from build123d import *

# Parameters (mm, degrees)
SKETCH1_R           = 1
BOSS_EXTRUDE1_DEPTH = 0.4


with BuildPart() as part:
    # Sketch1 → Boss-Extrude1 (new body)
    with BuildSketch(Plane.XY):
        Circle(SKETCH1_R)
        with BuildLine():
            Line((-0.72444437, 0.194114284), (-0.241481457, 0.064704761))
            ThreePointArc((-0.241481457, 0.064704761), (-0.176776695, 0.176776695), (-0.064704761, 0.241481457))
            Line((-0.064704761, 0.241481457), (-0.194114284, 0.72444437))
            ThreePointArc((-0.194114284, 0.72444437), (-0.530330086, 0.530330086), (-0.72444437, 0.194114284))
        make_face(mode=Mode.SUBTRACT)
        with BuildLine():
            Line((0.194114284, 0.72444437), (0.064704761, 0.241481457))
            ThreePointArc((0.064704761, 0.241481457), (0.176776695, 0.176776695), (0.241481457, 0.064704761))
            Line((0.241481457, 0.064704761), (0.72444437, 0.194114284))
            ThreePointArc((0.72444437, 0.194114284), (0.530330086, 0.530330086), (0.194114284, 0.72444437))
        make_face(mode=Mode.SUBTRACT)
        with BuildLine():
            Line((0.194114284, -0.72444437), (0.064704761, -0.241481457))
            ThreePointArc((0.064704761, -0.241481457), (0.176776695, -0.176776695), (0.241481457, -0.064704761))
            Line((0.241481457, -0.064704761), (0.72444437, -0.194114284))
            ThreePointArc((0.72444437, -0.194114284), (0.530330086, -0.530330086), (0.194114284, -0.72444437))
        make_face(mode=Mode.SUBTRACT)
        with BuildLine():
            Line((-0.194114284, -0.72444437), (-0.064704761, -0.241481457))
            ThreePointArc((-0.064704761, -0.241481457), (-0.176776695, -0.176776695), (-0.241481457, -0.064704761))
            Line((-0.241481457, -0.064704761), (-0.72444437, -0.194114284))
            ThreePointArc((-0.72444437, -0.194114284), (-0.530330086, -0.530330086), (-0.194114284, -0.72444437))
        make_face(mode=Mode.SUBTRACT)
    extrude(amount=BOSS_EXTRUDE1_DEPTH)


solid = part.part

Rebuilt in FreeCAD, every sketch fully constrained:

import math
import FreeCAD as App
import Part
import Sketcher

V = App.Vector
Q = App.Units.Quantity

doc = App.newDocument("Part")
body = doc.addObject("PartDesign::Body", "Body")

sketch1 = body.newObject("Sketcher::SketchObject", "Sketch")
sketch1.AttachmentSupport = (doc.getObject("XY_Plane"), [""])
sketch1.MapMode = "FlatFace"
sketch1.addGeometry([
    Part.Circle(V(0, 0, 0), V(0, 0, 1), 1),
    Part.LineSegment(V(-0.06, -0.24, 0), V(-0.19, -0.72, 0)),
    Part.ArcOfCircle(Part.Circle(V(0, 0, 0), V(0, 0, 1), 0.75), math.radians(-165), math.radians(-105)),
    Part.LineSegment(V(-0.72, -0.19, 0), V(-0.24, -0.06, 0)),
    Part.ArcOfCircle(Part.Circle(V(0, 0, 0), V(0, 0, 1), 0.25), math.radians(-165), math.radians(-105)),
    Part.ArcOfCircle(Part.Circle(V(0, 0, 0), V(0, 0, 1), 0.75), math.radians(-75), math.radians(-15)),
    Part.LineSegment(V(0.19, -0.72, 0), V(0.06, -0.24, 0)),
    Part.ArcOfCircle(Part.Circle(V(0, 0, 0), V(0, 0, 1), 0.25), math.radians(-75), math.radians(-15)),
    Part.LineSegment(V(0.24, -0.06, 0), V(0.72, -0.19, 0)),
    Part.LineSegment(V(-0.24, 0.06, 0), V(-0.72, 0.19, 0)),
    Part.ArcOfCircle(Part.Circle(V(0, 0, 0), V(0, 0, 1), 0.75), math.radians(105), math.radians(165)),
    Part.LineSegment(V(-0.19, 0.72, 0), V(-0.06, 0.24, 0)),
    Part.ArcOfCircle(Part.Circle(V(0, 0, 0), V(0, 0, 1), 0.25), math.radians(105), math.radians(165)),
    Part.LineSegment(V(0.06, 0.24, 0), V(0.19, 0.72, 0)),
    Part.ArcOfCircle(Part.Circle(V(0, 0, 0), V(0, 0, 1), 0.75), math.radians(15), math.radians(75)),
    Part.LineSegment(V(0.72, 0.19, 0), V(0.24, 0.06, 0)),
    Part.ArcOfCircle(Part.Circle(V(0, 0, 0), V(0, 0, 1), 0.25), math.radians(15), math.radians(75)),
], False)
sketch1.addConstraint([
    Sketcher.Constraint("Coincident", 1, 2, 2, 2),
    Sketcher.Constraint("Coincident", 2, 1, 3, 1),
    Sketcher.Constraint("Coincident", 3, 2, 4, 1),
    Sketcher.Constraint("Coincident", 4, 2, 1, 1),
    Sketcher.Constraint("Coincident", 5, 1, 6, 1),
    Sketcher.Constraint("Coincident", 6, 2, 7, 1),
    Sketcher.Constraint("Coincident", 7, 2, 8, 1),
    Sketcher.Constraint("Coincident", 8, 2, 5, 2),
    Sketcher.Constraint("Coincident", 9, 2, 10, 2),
    Sketcher.Constraint("Coincident", 10, 1, 11, 1),
    Sketcher.Constraint("Coincident", 11, 2, 12, 1),
    Sketcher.Constraint("Coincident", 12, 2, 9, 1),
    Sketcher.Constraint("Coincident", 13, 2, 14, 2),
    Sketcher.Constraint("Coincident", 14, 1, 15, 1),
    Sketcher.Constraint("Coincident", 15, 2, 16, 1),
    Sketcher.Constraint("Coincident", 16, 2, 13, 1),
    Sketcher.Constraint("Coincident", 0, 3, -1, 1),
    Sketcher.Constraint("Coincident", 2, 3, -1, 1),
    Sketcher.Constraint("Coincident", 4, 3, -1, 1),
    Sketcher.Constraint("Coincident", 5, 3, -1, 1),
    Sketcher.Constraint("Coincident", 7, 3, -1, 1),
    Sketcher.Constraint("Coincident", 10, 3, -1, 1),
    Sketcher.Constraint("Coincident", 12, 3, -1, 1),
    Sketcher.Constraint("Coincident", 14, 3, -1, 1),
    Sketcher.Constraint("Coincident", 16, 3, -1, 1),
    Sketcher.Constraint("Equal", 2, 5),
    Sketcher.Constraint("Equal", 4, 7),
    Sketcher.Constraint("Equal", 5, 10),
    Sketcher.Constraint("Equal", 7, 12),
    Sketcher.Constraint("Equal", 10, 14),
    Sketcher.Constraint("Equal", 12, 16),
    Sketcher.Constraint("Perpendicular", 3, 6),
    Sketcher.Constraint("Perpendicular", 1, 8),
    Sketcher.Constraint("Parallel", 8, 9),
    Sketcher.Constraint("Parallel", 6, 11),
    Sketcher.Constraint("Perpendicular", 9, 13),
    Sketcher.Constraint("Perpendicular", 11, 15),
    Sketcher.Constraint("Horizontal", 1, 2, 5, 1),
    Sketcher.Constraint("Horizontal", 4, 2, 6, 2),
    Sketcher.Constraint("Horizontal", 3, 2, 7, 2),
    Sketcher.Constraint("Horizontal", 10, 1, 13, 2),
    Sketcher.Constraint("Horizontal", 9, 2, 14, 1),
    Sketcher.Constraint("Vertical", 2, 1, 9, 2),
    Sketcher.Constraint("Vertical", 1, 2, 10, 1),
    Sketcher.Constraint("Diameter", 0, 2.0),
    Sketcher.Constraint("Angle", 1, Q("-105 deg")),
    Sketcher.Constraint("Radius", 2, 0.75),
    Sketcher.Constraint("Radius", 4, 0.25),
    Sketcher.Constraint("DistanceX", 3, 2, -1, 1, 0.241481),
    Sketcher.Constraint("DistanceY", 4, 2, -1, 1, 0.241481),
])
pad1 = body.newObject("PartDesign::Pad", "Pad")
pad1.Profile = sketch1
pad1.Length = 0.4

doc.recompute()
